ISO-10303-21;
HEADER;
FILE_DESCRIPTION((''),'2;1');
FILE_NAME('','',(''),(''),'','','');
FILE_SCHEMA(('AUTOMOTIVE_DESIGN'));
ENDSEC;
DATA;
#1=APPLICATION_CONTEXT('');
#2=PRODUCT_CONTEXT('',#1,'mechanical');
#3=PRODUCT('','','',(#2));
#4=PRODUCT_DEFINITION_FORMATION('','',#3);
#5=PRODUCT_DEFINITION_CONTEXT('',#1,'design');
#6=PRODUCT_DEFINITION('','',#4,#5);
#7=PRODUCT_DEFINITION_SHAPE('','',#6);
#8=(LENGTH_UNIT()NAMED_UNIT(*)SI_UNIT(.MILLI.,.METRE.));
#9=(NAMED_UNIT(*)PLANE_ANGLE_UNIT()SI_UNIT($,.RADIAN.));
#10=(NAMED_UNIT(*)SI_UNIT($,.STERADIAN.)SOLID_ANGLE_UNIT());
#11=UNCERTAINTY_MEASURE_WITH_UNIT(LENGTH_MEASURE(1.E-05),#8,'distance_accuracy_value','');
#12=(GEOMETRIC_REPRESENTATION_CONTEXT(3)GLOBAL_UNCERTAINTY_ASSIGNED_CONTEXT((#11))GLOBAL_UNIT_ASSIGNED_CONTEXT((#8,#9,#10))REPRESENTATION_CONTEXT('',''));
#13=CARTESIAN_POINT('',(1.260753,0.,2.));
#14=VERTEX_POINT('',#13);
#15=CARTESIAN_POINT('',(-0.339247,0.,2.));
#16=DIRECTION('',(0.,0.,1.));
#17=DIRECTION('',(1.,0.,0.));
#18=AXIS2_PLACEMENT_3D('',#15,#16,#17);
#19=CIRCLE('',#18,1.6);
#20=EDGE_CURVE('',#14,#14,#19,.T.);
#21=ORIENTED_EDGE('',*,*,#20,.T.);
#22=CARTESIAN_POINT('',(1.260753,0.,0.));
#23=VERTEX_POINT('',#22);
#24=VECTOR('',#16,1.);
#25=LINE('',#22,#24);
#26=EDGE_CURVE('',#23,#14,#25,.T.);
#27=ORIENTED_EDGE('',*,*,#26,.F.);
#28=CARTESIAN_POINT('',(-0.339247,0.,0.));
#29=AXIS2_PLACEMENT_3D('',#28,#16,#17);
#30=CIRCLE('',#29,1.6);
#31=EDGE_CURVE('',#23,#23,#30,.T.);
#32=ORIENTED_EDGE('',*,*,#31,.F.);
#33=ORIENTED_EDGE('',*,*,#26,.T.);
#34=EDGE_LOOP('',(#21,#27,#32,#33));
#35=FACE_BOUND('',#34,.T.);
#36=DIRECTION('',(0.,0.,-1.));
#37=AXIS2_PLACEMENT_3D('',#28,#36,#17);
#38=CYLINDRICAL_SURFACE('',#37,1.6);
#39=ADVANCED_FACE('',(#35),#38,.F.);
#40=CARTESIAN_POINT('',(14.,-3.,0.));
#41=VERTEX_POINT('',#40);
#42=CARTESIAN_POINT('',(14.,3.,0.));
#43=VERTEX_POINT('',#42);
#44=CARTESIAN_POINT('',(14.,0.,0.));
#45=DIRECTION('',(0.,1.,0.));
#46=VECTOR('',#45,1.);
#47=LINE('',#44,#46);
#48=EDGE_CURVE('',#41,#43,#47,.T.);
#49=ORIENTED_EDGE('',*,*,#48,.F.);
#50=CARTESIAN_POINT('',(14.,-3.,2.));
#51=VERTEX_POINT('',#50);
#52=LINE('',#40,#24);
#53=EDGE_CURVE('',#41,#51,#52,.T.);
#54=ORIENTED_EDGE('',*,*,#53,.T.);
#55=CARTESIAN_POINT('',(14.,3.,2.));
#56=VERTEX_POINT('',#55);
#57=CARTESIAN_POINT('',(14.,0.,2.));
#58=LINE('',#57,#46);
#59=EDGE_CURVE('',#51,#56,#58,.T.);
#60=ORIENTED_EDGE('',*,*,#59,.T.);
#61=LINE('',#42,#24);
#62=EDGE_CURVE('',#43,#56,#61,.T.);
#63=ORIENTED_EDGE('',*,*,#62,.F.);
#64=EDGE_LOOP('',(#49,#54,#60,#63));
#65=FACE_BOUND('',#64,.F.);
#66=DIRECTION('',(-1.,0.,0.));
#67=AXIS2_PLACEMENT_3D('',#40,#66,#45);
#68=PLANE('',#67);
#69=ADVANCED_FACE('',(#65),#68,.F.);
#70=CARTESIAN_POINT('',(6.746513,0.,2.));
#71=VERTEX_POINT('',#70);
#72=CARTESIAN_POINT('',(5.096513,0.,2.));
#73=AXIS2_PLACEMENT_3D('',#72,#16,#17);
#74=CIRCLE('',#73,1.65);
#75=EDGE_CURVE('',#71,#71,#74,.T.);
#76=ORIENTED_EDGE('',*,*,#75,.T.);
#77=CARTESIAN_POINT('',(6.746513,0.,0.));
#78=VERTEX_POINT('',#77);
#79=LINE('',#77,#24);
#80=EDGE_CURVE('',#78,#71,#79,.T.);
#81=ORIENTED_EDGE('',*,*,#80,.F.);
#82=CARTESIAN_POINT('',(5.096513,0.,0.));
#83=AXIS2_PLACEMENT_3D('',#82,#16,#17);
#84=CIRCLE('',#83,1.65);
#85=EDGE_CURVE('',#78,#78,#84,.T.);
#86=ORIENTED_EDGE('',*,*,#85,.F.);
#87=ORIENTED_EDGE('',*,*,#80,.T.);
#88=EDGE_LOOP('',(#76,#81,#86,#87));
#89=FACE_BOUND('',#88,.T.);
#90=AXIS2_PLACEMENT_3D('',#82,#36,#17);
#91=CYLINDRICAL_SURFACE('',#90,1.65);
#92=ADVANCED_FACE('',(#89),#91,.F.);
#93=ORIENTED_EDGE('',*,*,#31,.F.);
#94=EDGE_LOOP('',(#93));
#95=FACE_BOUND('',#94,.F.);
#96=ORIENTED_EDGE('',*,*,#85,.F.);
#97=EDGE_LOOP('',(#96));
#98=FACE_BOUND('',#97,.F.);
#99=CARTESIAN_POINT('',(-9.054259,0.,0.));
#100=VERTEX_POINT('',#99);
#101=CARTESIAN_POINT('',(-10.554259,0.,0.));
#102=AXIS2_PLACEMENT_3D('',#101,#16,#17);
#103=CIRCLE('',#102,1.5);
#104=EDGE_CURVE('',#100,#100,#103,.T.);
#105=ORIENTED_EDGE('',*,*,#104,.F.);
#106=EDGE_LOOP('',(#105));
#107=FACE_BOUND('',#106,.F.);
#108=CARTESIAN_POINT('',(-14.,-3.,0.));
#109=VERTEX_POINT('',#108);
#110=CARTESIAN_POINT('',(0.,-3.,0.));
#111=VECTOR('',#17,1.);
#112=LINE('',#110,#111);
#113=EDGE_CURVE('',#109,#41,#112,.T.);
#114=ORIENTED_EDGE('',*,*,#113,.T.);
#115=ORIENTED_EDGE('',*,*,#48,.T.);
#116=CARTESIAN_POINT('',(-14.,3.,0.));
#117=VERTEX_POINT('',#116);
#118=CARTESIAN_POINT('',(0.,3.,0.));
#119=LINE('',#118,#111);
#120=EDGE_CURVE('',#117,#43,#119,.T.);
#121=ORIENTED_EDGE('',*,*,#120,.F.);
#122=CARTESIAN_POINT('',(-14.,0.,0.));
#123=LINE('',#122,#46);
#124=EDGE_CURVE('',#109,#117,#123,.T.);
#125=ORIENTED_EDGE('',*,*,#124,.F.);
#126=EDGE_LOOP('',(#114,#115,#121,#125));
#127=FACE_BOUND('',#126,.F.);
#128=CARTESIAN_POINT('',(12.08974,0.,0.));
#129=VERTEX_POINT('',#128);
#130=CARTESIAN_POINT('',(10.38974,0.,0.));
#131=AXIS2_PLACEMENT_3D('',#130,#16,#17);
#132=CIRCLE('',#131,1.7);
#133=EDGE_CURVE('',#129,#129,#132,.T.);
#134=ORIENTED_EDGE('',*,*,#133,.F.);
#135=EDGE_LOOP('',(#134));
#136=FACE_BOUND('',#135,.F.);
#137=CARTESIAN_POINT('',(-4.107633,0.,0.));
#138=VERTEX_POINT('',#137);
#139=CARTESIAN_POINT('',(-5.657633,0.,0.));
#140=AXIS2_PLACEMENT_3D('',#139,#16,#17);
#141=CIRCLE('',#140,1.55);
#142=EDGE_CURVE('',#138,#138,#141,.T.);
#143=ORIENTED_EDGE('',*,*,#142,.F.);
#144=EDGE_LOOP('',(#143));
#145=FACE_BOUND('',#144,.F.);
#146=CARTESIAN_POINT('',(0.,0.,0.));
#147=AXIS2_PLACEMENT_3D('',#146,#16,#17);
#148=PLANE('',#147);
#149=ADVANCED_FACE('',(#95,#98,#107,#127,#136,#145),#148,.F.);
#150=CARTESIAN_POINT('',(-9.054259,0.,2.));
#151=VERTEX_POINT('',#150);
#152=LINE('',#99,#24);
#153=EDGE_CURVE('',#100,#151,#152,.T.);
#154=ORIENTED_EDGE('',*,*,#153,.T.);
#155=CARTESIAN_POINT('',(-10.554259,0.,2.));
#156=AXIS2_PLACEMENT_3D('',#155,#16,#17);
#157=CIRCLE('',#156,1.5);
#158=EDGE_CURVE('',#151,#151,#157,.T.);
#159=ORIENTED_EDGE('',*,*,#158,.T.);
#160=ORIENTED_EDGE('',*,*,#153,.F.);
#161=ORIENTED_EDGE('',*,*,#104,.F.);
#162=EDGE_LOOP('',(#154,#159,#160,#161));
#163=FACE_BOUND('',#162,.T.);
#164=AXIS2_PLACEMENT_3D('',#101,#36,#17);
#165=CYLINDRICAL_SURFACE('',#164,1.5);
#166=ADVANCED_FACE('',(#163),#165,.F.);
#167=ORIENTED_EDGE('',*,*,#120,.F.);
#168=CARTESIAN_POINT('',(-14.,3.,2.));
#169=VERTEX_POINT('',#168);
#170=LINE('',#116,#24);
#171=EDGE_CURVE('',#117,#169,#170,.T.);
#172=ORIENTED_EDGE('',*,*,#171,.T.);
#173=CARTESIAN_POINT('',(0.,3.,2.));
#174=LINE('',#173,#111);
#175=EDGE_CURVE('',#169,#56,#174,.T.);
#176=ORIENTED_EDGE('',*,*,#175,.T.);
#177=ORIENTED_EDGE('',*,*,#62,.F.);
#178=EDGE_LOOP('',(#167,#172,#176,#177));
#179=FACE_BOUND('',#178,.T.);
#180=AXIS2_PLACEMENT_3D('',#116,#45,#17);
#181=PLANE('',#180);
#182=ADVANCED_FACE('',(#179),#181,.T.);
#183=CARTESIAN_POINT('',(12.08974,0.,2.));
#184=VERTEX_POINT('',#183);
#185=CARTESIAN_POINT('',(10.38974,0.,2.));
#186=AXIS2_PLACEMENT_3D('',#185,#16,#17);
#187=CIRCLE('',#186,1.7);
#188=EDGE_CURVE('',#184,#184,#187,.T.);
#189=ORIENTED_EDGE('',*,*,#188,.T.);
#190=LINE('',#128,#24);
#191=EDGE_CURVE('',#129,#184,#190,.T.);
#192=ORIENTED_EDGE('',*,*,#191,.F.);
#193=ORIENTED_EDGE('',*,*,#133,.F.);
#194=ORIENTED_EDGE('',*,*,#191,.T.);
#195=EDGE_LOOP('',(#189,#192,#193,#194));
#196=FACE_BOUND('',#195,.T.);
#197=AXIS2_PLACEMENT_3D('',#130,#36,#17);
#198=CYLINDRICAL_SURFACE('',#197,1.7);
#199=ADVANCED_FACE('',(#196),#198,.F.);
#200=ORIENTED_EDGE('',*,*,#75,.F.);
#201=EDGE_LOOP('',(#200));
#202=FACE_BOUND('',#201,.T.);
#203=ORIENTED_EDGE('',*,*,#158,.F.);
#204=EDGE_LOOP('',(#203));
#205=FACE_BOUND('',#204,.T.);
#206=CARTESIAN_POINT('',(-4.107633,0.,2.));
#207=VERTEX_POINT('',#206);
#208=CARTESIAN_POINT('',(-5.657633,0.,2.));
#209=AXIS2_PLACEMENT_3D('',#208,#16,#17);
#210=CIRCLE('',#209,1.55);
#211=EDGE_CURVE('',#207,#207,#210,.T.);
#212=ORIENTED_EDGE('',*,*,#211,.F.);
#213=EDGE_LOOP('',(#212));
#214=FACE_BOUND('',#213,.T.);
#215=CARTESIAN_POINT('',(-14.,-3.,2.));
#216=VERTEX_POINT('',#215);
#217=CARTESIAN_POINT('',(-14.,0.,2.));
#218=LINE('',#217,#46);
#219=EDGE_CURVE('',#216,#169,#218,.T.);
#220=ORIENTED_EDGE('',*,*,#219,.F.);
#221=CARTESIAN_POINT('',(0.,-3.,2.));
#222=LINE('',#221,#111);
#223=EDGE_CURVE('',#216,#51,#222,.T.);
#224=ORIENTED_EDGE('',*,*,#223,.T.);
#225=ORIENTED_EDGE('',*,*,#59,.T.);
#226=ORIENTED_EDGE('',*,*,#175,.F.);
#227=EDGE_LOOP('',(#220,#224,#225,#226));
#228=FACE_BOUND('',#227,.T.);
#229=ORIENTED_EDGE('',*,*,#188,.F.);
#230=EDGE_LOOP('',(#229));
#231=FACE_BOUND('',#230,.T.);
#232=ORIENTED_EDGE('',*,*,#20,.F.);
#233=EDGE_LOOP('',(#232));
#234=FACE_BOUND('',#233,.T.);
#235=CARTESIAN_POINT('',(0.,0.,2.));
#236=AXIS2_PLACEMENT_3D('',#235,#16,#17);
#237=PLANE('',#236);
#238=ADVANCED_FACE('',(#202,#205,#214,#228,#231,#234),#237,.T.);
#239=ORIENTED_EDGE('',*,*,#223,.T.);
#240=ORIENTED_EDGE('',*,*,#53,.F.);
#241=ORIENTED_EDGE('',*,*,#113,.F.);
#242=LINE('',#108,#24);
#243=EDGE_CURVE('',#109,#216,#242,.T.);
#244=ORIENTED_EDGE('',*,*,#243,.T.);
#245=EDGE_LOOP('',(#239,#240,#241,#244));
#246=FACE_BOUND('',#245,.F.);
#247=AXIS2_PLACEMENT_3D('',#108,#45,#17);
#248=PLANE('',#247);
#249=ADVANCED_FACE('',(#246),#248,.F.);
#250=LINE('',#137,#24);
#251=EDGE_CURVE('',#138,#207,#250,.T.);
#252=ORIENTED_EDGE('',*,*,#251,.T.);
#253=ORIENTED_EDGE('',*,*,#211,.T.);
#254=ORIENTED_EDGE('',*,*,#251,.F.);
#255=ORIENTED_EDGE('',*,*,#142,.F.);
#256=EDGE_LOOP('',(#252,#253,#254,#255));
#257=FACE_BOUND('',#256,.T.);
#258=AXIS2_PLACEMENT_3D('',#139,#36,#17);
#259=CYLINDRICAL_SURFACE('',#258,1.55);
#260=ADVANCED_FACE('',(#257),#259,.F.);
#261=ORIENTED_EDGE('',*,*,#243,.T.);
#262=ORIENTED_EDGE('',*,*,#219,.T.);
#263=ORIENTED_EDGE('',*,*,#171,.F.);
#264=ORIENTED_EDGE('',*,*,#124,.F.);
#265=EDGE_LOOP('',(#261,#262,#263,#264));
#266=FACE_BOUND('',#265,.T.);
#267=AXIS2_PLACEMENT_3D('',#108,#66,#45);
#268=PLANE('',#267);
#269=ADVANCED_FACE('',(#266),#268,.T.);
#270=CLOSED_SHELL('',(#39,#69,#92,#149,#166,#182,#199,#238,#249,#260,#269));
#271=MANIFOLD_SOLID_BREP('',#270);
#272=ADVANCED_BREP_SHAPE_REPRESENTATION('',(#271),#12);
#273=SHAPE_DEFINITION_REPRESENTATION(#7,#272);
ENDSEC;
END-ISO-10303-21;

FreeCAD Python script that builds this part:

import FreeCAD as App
import Part
import Sketcher
from FreeCAD import Vector

doc = App.newDocument("Part")
params = doc.addObject("Spreadsheet::Sheet", "Params")
for row, (alias, value) in enumerate([
    ("sketch1_diameter", "3 mm"),
    ("sketch1_diameter2", "3.1 mm"),
    ("sketch1_diameter3", "3.2 mm"),
    ("sketch1_diameter4", "3.3 mm"),
    ("sketch1_diameter5", "3.4 mm"),
    ("pad1_length", "2 mm"),
], start=1):
    params.set(f"A{row}", alias)
    params.set(f"B{row}", "=" + value)
    params.setAlias(f"B{row}", alias)

body = doc.addObject("PartDesign::Body", "Body")

# Sketch on XY plane
sketch1 = body.newObject("Sketcher::SketchObject", "Sketch")
sketch1.AttachmentSupport = (doc.getObject("XY_Plane"), [""])
sketch1.MapMode = "FlatFace"
sketch1.addGeometry(Part.LineSegment(Vector(-14, 3, 0), Vector(-14, -3, 0)), False)
sketch1.addGeometry(Part.LineSegment(Vector(-14, -3, 0), Vector(14, -3, 0)), False)
sketch1.addGeometry(Part.LineSegment(Vector(14, -3, 0), Vector(14, 3, 0)), False)
sketch1.addGeometry(Part.LineSegment(Vector(14, 3, 0), Vector(-14, 3, 0)), False)
sketch1.addGeometry(Part.Circle(Vector(-10.6, 0, 0), Vector(0, 0, 1), 1.5), False)
sketch1.addGeometry(Part.Circle(Vector(-5.7, 0, 0), Vector(0, 0, 1), 1.6), False)
sketch1.addGeometry(Part.Circle(Vector(-0.3, 0, 0), Vector(0, 0, 1), 1.6), False)
sketch1.addGeometry(Part.Circle(Vector(5.1, 0, 0), Vector(0, 0, 1), 1.6), False)
sketch1.addGeometry(Part.Circle(Vector(10.4, 0, 0), Vector(0, 0, 1), 1.7), False)
sketch1.addConstraint(Sketcher.Constraint("Coincident", 0, 2, 1, 1))
sketch1.addConstraint(Sketcher.Constraint("Coincident", 1, 2, 2, 1))
sketch1.addConstraint(Sketcher.Constraint("Coincident", 2, 2, 3, 1))
sketch1.addConstraint(Sketcher.Constraint("Coincident", 3, 2, 0, 1))
sketch1.addConstraint(Sketcher.Constraint("Vertical", 0))
sketch1.addConstraint(Sketcher.Constraint("Horizontal", 1))
sketch1.addConstraint(Sketcher.Constraint("Vertical", 2))
sketch1.addConstraint(Sketcher.Constraint("Horizontal", 3))
sketch1.addConstraint(Sketcher.Constraint("Symmetric", 0, 2, 2, 2, -1, 1))
sketch1.addConstraint(Sketcher.Constraint("PointOnObject", 4, 3, -1))
sketch1.addConstraint(Sketcher.Constraint("PointOnObject", 5, 3, -1))
sketch1.addConstraint(Sketcher.Constraint("PointOnObject", 6, 3, -1))
sketch1.addConstraint(Sketcher.Constraint("PointOnObject", 7, 3, -1))
sketch1.addConstraint(Sketcher.Constraint("PointOnObject", 8, 3, -1))
sketch1.addConstraint(Sketcher.Constraint("Diameter", 4, 3.0))
sketch1.addConstraint(Sketcher.Constraint("Diameter", 5, 3.1))
sketch1.addConstraint(Sketcher.Constraint("Diameter", 6, 3.2))
sketch1.addConstraint(Sketcher.Constraint("Diameter", 7, 3.3))
sketch1.addConstraint(Sketcher.Constraint("Diameter", 8, 3.4))
sketch1.addConstraint(Sketcher.Constraint("DistanceX", 1, 1, 1, 2, 28.0))
sketch1.addConstraint(Sketcher.Constraint("DistanceY", 0, 2, 0, 1, 6.0))
sketch1.addConstraint(Sketcher.Constraint("DistanceX", 4, 3, 8, 3, 20.943999))
sketch1.addConstraint(Sketcher.Constraint("DistanceX", 4, 3, -1, 1, 10.554259))
sketch1.addConstraint(Sketcher.Constraint("DistanceX", 6, 3, 7, 3, 5.43576))
sketch1.addConstraint(Sketcher.Constraint("DistanceX", 5, 3, -1, 1, 5.657633))
sketch1.addConstraint(Sketcher.Constraint("DistanceX", 6, 3, -1, 1, 0.339247))
sketch1.setExpression("Constraints[14]", "Params.sketch1_diameter")
sketch1.setExpression("Constraints[15]", "Params.sketch1_diameter2")
sketch1.setExpression("Constraints[16]", "Params.sketch1_diameter3")
sketch1.setExpression("Constraints[17]", "Params.sketch1_diameter4")
sketch1.setExpression("Constraints[18]", "Params.sketch1_diameter5")
pad1 = body.newObject("PartDesign::Pad", "Pad")
pad1.Profile = sketch1
pad1.setExpression("Length", "Params.pad1_length")

doc.recompute()
